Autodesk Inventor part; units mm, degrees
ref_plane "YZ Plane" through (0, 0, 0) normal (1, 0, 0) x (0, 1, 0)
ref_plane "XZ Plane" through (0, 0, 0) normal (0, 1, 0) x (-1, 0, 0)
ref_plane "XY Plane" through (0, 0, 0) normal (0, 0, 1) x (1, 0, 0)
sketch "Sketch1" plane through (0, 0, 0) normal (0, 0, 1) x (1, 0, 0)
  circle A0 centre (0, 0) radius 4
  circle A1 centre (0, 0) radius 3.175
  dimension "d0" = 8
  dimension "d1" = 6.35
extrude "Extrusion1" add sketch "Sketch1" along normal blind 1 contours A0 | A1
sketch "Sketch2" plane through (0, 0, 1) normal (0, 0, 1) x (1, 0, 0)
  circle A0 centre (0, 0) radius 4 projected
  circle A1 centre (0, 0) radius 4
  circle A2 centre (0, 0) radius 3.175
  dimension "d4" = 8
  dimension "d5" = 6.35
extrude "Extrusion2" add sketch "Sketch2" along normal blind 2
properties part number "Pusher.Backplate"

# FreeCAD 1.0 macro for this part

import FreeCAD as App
import Part
import Sketcher

V = App.Vector

doc = App.newDocument("Part")
body = doc.addObject("PartDesign::Body", "Body")

sketch1 = body.newObject("Sketcher::SketchObject", "Sketch")
sketch1.AttachmentSupport = (doc.getObject("XY_Plane"), [""])
sketch1.MapMode = "FlatFace"
sketch1.addGeometry(Part.Circle(V(0, 0, 0), V(0, 0, 1), 4), False)
sketch1.addConstraint([
    Sketcher.Constraint("Coincident", 0, 3, -1, 1),
    Sketcher.Constraint("Diameter", 0, 8.0),
])
pad1 = body.newObject("PartDesign::Pad", "Pad")
pad1.Profile = sketch1
pad1.Length = 1

sketch2 = body.newObject("Sketcher::SketchObject", "Sketch001")
sketch2.AttachmentSupport = (doc.getObject("XY_Plane"), [""])
sketch2.MapMode = "FlatFace"
sketch2.AttachmentOffset = App.Placement(V(0, 0, 1), App.Rotation())
sketch2.addGeometry([
    Part.Circle(V(0, 0, 0), V(0, 0, 1), 4),
    Part.Circle(V(0, 0, 0), V(0, 0, 1), 3.2),
], False)
sketch2.addConstraint([
    Sketcher.Constraint("Coincident", 0, 3, -1, 1),
    Sketcher.Constraint("Coincident", 1, 3, -1, 1),
    Sketcher.Constraint("Diameter", 0, 8.0),
    Sketcher.Constraint("Diameter", 1, 6.35),
])
pad2 = body.newObject("PartDesign::Pad", "Pad001")
pad2.Profile = sketch2
pad2.Length = 2

doc.recompute()
